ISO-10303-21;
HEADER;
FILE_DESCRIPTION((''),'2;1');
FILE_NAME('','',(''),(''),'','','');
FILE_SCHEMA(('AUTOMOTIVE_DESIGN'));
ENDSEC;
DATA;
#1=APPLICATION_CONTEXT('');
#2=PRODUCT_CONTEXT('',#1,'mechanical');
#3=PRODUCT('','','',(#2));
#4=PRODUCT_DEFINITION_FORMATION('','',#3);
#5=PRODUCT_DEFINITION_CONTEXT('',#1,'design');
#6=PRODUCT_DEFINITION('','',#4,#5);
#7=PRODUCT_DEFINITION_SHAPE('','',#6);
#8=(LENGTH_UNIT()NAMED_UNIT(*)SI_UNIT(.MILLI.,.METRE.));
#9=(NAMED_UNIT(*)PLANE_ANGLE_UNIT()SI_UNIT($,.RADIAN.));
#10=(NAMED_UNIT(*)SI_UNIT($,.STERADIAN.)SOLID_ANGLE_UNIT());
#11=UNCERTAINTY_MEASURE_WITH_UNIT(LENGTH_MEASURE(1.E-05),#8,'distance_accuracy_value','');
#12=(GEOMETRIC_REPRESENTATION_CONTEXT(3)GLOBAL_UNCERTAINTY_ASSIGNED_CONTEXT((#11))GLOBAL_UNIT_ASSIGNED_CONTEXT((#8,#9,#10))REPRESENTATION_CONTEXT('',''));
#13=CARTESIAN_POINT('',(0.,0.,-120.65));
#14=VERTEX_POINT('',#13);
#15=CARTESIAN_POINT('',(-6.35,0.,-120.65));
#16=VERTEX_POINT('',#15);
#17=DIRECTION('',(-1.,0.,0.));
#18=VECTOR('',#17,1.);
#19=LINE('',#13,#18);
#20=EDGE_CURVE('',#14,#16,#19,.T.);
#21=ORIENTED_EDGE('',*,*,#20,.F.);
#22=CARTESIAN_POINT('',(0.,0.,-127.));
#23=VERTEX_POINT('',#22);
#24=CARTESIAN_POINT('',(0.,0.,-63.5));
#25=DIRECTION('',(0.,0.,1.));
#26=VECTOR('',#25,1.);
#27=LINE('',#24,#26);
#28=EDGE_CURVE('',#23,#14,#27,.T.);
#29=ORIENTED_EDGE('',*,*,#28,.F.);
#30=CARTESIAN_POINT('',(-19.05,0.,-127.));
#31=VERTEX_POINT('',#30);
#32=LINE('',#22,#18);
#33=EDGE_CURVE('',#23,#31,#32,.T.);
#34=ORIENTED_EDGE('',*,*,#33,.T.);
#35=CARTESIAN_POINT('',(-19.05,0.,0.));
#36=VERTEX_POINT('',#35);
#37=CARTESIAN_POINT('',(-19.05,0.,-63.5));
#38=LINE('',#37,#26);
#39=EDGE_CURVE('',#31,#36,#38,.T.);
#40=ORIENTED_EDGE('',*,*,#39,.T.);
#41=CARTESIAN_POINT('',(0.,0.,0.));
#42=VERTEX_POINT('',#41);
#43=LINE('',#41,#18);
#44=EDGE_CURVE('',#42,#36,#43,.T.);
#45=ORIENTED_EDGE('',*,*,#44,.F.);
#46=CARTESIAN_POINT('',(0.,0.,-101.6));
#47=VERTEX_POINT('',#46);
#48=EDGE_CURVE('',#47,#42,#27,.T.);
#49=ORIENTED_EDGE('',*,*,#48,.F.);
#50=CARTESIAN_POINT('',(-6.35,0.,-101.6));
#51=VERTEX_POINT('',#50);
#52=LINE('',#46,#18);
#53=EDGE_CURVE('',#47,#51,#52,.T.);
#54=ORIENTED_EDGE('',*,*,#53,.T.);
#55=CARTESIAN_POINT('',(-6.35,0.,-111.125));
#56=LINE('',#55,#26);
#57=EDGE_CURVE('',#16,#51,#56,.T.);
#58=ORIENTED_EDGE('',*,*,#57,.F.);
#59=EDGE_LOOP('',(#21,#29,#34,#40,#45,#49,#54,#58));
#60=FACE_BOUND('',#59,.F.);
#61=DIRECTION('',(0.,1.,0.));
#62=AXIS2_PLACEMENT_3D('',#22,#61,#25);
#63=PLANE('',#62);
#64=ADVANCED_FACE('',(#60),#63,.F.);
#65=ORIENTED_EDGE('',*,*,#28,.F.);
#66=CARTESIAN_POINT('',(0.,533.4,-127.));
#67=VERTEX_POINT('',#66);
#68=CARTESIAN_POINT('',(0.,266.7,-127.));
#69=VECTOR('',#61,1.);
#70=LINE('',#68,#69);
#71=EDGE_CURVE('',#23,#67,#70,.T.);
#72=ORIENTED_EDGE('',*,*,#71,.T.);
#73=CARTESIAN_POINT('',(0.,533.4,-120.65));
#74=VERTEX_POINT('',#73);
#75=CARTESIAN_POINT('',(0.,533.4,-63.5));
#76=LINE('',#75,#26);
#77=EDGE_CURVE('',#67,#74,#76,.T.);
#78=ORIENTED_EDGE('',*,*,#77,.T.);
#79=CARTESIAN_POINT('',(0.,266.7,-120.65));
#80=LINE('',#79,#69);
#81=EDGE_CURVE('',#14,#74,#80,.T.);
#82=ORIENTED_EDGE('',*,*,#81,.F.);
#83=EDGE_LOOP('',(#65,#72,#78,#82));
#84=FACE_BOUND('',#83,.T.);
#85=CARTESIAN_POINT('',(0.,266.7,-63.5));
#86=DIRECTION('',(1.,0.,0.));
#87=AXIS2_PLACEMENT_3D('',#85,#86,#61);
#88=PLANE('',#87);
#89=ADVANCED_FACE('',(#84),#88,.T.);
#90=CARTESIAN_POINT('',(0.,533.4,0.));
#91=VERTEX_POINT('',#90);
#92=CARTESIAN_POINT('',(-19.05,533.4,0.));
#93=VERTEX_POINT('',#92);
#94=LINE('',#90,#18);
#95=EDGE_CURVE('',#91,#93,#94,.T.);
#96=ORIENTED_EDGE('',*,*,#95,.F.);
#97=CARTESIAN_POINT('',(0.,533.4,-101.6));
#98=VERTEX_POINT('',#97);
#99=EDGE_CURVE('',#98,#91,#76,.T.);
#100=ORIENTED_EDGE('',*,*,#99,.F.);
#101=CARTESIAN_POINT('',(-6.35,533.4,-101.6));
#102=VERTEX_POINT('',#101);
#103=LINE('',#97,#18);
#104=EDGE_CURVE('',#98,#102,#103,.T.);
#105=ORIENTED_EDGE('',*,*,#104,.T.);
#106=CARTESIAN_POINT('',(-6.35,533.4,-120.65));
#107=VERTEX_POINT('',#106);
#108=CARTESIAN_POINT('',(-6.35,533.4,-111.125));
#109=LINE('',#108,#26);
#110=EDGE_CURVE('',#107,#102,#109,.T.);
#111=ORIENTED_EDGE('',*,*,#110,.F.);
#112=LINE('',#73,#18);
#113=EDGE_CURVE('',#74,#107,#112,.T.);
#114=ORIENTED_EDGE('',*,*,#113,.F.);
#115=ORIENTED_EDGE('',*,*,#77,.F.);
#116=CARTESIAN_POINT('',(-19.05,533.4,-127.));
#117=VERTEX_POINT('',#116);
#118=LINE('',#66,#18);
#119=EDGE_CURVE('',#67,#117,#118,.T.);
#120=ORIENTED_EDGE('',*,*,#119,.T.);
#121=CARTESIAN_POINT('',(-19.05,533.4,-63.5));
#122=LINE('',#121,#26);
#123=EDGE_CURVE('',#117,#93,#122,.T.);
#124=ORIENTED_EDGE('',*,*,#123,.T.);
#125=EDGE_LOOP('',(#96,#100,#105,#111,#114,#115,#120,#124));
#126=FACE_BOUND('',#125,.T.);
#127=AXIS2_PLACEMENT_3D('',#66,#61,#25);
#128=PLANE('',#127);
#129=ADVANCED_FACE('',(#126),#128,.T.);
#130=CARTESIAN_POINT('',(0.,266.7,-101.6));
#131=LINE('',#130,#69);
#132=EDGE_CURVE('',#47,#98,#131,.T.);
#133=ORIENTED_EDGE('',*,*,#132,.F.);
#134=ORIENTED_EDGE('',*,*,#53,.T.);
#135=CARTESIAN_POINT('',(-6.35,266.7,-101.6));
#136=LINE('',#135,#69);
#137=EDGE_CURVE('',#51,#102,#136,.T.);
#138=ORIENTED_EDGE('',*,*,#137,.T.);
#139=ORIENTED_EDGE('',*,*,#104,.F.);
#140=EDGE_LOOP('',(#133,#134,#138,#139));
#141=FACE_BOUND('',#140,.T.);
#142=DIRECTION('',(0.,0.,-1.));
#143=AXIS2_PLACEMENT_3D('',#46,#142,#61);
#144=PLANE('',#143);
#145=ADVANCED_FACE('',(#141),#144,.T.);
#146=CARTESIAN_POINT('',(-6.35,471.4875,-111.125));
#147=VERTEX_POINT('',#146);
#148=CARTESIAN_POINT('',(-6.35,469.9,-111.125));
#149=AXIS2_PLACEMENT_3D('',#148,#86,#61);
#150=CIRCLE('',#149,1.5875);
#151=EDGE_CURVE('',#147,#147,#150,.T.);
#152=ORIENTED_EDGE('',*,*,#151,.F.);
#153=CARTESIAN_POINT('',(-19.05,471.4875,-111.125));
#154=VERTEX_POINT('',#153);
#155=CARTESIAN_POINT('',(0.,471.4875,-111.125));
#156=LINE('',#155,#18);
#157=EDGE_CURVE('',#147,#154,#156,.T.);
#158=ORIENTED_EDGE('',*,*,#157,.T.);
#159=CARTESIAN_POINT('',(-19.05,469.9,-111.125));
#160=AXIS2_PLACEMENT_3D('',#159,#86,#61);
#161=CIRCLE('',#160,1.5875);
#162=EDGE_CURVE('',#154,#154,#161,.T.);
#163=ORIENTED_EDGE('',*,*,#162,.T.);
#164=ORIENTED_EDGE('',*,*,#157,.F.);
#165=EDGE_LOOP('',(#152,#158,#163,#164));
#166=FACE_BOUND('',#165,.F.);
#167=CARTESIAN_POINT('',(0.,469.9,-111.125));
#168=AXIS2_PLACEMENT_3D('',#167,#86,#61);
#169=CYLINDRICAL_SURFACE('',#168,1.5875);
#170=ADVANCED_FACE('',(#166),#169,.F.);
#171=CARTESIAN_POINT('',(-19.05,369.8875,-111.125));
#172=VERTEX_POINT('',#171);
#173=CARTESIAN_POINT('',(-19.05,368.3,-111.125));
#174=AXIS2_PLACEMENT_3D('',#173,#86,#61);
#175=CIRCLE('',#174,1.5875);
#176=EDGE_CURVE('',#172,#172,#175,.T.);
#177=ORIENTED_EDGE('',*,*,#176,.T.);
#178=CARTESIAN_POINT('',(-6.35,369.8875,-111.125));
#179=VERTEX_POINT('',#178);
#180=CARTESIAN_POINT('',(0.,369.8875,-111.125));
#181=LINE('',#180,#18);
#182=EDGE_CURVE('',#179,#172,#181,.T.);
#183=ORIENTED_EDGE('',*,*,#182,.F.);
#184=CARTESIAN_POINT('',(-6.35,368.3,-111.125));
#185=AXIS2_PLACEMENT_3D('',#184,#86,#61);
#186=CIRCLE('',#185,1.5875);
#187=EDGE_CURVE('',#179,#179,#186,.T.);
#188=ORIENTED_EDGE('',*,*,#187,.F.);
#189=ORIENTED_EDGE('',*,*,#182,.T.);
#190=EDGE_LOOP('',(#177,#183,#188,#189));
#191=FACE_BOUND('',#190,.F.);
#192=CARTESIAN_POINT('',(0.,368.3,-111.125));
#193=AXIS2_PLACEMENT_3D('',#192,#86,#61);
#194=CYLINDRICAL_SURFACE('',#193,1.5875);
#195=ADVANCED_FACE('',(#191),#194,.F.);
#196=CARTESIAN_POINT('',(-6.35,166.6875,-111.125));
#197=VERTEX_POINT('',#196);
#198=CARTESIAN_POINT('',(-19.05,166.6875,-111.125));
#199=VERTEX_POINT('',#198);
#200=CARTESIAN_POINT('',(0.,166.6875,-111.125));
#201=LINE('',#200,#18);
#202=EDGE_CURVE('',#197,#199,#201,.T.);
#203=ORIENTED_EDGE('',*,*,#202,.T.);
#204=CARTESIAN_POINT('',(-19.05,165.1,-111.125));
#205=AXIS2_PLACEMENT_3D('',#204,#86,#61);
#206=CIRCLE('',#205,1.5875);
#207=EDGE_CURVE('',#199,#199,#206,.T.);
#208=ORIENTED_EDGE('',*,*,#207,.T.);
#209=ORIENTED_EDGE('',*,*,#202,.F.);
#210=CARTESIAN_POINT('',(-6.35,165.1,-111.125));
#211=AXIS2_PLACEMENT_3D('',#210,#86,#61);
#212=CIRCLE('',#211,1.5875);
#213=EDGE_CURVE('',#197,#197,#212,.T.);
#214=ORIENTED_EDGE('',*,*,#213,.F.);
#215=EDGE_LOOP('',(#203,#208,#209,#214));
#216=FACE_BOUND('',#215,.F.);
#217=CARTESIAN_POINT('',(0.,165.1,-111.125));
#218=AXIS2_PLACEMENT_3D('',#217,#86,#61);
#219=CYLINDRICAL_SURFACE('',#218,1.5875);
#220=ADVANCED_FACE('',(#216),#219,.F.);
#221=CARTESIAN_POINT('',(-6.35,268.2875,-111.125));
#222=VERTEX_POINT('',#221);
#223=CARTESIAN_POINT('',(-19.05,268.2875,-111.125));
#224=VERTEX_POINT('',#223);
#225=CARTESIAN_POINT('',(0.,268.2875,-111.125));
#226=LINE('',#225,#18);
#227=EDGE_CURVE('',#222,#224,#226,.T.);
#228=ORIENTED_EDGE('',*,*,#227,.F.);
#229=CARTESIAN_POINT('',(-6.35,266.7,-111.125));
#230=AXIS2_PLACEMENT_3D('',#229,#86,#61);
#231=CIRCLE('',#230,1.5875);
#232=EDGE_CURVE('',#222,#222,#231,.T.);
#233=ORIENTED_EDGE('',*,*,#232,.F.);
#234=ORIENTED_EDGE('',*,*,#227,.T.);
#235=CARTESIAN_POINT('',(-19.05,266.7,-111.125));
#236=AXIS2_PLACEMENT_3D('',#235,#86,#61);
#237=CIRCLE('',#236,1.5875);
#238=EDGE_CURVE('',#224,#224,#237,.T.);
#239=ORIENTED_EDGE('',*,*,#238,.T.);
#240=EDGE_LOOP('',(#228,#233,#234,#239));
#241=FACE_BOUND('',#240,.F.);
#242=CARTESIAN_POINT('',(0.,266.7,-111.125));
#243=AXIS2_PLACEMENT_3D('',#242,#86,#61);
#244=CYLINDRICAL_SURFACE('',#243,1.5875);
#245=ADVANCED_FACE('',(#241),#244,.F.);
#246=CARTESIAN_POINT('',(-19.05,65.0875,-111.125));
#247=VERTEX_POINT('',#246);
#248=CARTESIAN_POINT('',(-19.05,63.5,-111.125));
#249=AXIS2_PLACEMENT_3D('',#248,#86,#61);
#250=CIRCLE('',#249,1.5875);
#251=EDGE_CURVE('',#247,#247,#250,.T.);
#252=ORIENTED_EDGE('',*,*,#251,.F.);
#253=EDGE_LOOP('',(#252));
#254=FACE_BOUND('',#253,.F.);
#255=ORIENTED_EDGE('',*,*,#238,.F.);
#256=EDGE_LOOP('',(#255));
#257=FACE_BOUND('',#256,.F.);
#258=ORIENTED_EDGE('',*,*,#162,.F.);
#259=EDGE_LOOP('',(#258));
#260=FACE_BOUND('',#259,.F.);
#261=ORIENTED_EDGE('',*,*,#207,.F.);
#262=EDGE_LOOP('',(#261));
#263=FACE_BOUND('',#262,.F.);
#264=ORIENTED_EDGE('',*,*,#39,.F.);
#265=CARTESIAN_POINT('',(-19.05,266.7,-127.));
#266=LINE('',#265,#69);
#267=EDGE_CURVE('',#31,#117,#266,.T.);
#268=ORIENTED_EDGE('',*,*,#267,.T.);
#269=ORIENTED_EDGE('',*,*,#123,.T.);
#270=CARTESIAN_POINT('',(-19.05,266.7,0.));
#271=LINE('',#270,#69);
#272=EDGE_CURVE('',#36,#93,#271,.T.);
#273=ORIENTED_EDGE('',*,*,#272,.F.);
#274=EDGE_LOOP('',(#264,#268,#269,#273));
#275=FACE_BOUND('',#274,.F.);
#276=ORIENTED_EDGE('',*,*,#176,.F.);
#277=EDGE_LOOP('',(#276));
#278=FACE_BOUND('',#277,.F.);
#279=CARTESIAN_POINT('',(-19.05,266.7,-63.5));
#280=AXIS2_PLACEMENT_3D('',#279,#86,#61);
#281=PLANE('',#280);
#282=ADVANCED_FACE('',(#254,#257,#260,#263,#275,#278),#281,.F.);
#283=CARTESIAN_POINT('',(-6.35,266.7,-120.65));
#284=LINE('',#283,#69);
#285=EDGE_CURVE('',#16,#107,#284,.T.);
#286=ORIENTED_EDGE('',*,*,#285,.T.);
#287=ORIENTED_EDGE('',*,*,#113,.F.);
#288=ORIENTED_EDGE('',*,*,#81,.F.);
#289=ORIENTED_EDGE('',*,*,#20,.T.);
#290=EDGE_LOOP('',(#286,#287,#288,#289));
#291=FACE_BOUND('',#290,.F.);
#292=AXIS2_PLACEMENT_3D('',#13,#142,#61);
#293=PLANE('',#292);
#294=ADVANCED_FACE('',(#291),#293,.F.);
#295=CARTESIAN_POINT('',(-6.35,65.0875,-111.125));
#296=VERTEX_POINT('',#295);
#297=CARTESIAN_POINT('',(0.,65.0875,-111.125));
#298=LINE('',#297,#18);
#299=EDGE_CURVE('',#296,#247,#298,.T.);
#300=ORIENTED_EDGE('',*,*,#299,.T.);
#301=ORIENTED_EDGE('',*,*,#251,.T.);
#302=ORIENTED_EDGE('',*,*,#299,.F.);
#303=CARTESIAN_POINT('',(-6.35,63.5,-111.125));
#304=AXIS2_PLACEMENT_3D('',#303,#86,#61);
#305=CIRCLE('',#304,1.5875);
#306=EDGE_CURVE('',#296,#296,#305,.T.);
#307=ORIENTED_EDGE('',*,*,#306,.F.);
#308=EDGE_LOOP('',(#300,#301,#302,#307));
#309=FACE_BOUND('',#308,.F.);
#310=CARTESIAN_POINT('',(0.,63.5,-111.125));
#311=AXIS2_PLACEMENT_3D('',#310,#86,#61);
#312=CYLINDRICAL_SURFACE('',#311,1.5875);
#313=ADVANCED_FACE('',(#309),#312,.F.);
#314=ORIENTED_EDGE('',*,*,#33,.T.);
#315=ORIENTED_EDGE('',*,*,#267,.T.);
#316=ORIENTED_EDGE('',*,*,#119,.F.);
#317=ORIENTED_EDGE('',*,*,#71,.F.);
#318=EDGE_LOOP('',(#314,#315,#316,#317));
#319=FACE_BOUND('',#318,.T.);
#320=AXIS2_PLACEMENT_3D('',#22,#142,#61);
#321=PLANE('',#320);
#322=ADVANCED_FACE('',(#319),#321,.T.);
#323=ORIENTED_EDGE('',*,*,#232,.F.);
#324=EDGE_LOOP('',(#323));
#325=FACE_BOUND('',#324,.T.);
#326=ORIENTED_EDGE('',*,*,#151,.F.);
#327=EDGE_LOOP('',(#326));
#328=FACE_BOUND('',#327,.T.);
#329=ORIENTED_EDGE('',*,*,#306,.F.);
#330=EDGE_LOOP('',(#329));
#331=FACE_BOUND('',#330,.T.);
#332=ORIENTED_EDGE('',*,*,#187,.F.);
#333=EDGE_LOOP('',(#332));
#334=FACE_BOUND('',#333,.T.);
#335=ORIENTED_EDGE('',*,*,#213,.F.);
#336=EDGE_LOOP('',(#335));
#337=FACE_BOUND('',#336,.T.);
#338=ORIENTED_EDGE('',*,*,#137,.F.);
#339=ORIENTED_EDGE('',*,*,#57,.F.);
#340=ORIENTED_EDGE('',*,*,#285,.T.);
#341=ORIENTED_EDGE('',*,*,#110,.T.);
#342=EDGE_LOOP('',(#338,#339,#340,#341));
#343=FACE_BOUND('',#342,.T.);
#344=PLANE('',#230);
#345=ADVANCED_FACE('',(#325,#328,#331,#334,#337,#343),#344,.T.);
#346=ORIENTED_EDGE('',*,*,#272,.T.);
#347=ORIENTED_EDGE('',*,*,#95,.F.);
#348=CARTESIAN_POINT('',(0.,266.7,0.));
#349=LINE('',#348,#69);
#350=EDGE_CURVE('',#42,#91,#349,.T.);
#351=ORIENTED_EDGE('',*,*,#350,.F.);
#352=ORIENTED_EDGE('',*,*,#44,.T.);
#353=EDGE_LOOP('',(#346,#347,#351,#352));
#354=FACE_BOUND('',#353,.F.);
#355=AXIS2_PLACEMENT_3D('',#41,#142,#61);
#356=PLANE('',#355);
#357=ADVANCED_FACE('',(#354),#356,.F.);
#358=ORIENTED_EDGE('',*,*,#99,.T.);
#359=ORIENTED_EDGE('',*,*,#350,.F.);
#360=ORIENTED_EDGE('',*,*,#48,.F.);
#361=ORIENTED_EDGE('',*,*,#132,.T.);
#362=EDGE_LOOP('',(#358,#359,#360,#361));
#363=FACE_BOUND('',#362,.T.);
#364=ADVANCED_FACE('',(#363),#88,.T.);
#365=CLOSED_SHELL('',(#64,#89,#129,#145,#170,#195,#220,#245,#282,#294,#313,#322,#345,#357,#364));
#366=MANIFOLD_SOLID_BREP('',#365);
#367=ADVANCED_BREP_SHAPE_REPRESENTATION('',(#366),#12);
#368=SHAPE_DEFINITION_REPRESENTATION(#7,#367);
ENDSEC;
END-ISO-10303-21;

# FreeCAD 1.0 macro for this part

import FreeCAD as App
import Part
import Sketcher
Q = App.Units.Quantity

doc = App.newDocument("Part")
body = doc.addObject("PartDesign::Body", "Body")

sketch1 = doc.addObject("Sketcher::SketchObject", "Sketch")
body.addObject(sketch1)
sketch1.AttachmentSupport = (doc.YZ_Plane, [""])
sketch1.MapMode = "FlatFace"
sketch1.addGeometry(Part.LineSegment(App.Vector(0, 0, 0), App.Vector(0, -127, 0)), False)
sketch1.addGeometry(Part.LineSegment(App.Vector(0, -127, 0), App.Vector(533, -127, 0)), False)
sketch1.addGeometry(Part.LineSegment(App.Vector(533, -127, 0), App.Vector(533, 0, 0)), False)
sketch1.addGeometry(Part.LineSegment(App.Vector(533, 0, 0), App.Vector(0, 0, 0)), False)
sketch1.addConstraint(Sketcher.Constraint("Coincident", 0, 2, 1, 1))
sketch1.addConstraint(Sketcher.Constraint("Coincident", 1, 2, 2, 1))
sketch1.addConstraint(Sketcher.Constraint("Coincident", 2, 2, 3, 1))
sketch1.addConstraint(Sketcher.Constraint("Coincident", 3, 2, 0, 1))
sketch1.addConstraint(Sketcher.Constraint("Vertical", 0))
sketch1.addConstraint(Sketcher.Constraint("Horizontal", 1))
sketch1.addConstraint(Sketcher.Constraint("Vertical", 2))
sketch1.addConstraint(Sketcher.Constraint("Horizontal", 3))
sketch1.addConstraint(Sketcher.Constraint("Coincident", 3, 2, -1, 1))
sketch1.addConstraint(Sketcher.Constraint("DistanceX", 1, 1, 1, 2, Q("21 in")))
sketch1.addConstraint(Sketcher.Constraint("DistanceY", 0, 2, 0, 1, Q("5 in")))
pad1 = doc.addObject("PartDesign::Pad", "Pad")
body.addObject(pad1)
pad1.Profile = sketch1
pad1.Length = Q("0.75 in")
pad1.Reversed = True

sketch2 = doc.addObject("Sketcher::SketchObject", "Sketch001")
body.addObject(sketch2)
sketch2.AttachmentSupport = (doc.YZ_Plane, [""])
sketch2.MapMode = "FlatFace"
sketch2.addGeometry(Part.LineSegment(App.Vector(0, -102, 0), App.Vector(0, -121, 0)), False)
sketch2.addGeometry(Part.LineSegment(App.Vector(0, -121, 0), App.Vector(533, -121, 0)), False)
sketch2.addGeometry(Part.LineSegment(App.Vector(533, -121, 0), App.Vector(533, -102, 0)), False)
sketch2.addGeometry(Part.LineSegment(App.Vector(533, -102, 0), App.Vector(0, -102, 0)), False)
sketch2.addConstraint(Sketcher.Constraint("Coincident", 0, 2, 1, 1))
sketch2.addConstraint(Sketcher.Constraint("Coincident", 1, 2, 2, 1))
sketch2.addConstraint(Sketcher.Constraint("Coincident", 2, 2, 3, 1))
sketch2.addConstraint(Sketcher.Constraint("Coincident", 3, 2, 0, 1))
sketch2.addConstraint(Sketcher.Constraint("Vertical", 0))
sketch2.addConstraint(Sketcher.Constraint("Horizontal", 1))
sketch2.addConstraint(Sketcher.Constraint("Vertical", 2))
sketch2.addConstraint(Sketcher.Constraint("Horizontal", 3))
sketch2.addConstraint(Sketcher.Constraint("PointOnObject", 0, 2, -2))
sketch2.addConstraint(Sketcher.Constraint("DistanceX", 1, 1, 1, 2, Q("21 in")))
sketch2.addConstraint(Sketcher.Constraint("DistanceY", 2, 2, -1, 1, Q("4 in")))
sketch2.addConstraint(Sketcher.Constraint("DistanceY", 0, 2, 0, 1, Q("0.75 in")))
pocket1 = doc.addObject("PartDesign::Pocket", "Pocket")
body.addObject(pocket1)
pocket1.Profile = sketch2
pocket1.Length = Q("0.25 in")

sketch3 = doc.addObject("Sketcher::SketchObject", "Sketch002")
body.addObject(sketch3)
sketch3.AttachmentSupport = (doc.YZ_Plane, [""])
sketch3.MapMode = "FlatFace"
sketch3.addGeometry(Part.Circle(App.Vector(63.5, -111.1, 0), App.Vector(0, 0, 1), 1.6), False)
sketch3.addGeometry(Part.Circle(App.Vector(165.1, -111.1, 0), App.Vector(0, 0, 1), 1.6), False)
sketch3.addGeometry(Part.Circle(App.Vector(266.7, -111.1, 0), App.Vector(0, 0, 1), 1.6), False)
sketch3.addGeometry(Part.Circle(App.Vector(368.3, -111.1, 0), App.Vector(0, 0, 1), 1.6), False)
sketch3.addGeometry(Part.Circle(App.Vector(469.9, -111.1, 0), App.Vector(0, 0, 1), 1.6), False)
sketch3.addConstraint(Sketcher.Constraint("Equal", 0, 1))
sketch3.addConstraint(Sketcher.Constraint("Equal", 1, 2))
sketch3.addConstraint(Sketcher.Constraint("Equal", 2, 3))
sketch3.addConstraint(Sketcher.Constraint("Equal", 3, 4))
sketch3.addConstraint(Sketcher.Constraint("Horizontal", 0, 3, 1, 3))
sketch3.addConstraint(Sketcher.Constraint("Horizontal", 1, 3, 2, 3))
sketch3.addConstraint(Sketcher.Constraint("Horizontal", 2, 3, 3, 3))
sketch3.addConstraint(Sketcher.Constraint("Horizontal", 3, 3, 4, 3))
sketch3.addConstraint(Sketcher.Constraint("Diameter", 0, Q("0.125 in")))
sketch3.addConstraint(Sketcher.Constraint("DistanceX", 0, 3, 1, 3, Q("4 in")))
sketch3.addConstraint(Sketcher.Constraint("DistanceX", 1, 3, 2, 3, Q("4 in")))
sketch3.addConstraint(Sketcher.Constraint("DistanceX", 2, 3, 3, 3, Q("4 in")))
sketch3.addConstraint(Sketcher.Constraint("DistanceX", 3, 3, 4, 3, Q("4 in")))
sketch3.addConstraint(Sketcher.Constraint("DistanceX", -1, 1, 0, 3, Q("2.5 in")))
sketch3.addConstraint(Sketcher.Constraint("DistanceY", 0, 3, -1, 1, Q("4.375 in")))
pocket2 = doc.addObject("PartDesign::Pocket", "Pocket001")
body.addObject(pocket2)
pocket2.Profile = sketch3
pocket2.Type = "ThroughAll"

doc.recompute()
